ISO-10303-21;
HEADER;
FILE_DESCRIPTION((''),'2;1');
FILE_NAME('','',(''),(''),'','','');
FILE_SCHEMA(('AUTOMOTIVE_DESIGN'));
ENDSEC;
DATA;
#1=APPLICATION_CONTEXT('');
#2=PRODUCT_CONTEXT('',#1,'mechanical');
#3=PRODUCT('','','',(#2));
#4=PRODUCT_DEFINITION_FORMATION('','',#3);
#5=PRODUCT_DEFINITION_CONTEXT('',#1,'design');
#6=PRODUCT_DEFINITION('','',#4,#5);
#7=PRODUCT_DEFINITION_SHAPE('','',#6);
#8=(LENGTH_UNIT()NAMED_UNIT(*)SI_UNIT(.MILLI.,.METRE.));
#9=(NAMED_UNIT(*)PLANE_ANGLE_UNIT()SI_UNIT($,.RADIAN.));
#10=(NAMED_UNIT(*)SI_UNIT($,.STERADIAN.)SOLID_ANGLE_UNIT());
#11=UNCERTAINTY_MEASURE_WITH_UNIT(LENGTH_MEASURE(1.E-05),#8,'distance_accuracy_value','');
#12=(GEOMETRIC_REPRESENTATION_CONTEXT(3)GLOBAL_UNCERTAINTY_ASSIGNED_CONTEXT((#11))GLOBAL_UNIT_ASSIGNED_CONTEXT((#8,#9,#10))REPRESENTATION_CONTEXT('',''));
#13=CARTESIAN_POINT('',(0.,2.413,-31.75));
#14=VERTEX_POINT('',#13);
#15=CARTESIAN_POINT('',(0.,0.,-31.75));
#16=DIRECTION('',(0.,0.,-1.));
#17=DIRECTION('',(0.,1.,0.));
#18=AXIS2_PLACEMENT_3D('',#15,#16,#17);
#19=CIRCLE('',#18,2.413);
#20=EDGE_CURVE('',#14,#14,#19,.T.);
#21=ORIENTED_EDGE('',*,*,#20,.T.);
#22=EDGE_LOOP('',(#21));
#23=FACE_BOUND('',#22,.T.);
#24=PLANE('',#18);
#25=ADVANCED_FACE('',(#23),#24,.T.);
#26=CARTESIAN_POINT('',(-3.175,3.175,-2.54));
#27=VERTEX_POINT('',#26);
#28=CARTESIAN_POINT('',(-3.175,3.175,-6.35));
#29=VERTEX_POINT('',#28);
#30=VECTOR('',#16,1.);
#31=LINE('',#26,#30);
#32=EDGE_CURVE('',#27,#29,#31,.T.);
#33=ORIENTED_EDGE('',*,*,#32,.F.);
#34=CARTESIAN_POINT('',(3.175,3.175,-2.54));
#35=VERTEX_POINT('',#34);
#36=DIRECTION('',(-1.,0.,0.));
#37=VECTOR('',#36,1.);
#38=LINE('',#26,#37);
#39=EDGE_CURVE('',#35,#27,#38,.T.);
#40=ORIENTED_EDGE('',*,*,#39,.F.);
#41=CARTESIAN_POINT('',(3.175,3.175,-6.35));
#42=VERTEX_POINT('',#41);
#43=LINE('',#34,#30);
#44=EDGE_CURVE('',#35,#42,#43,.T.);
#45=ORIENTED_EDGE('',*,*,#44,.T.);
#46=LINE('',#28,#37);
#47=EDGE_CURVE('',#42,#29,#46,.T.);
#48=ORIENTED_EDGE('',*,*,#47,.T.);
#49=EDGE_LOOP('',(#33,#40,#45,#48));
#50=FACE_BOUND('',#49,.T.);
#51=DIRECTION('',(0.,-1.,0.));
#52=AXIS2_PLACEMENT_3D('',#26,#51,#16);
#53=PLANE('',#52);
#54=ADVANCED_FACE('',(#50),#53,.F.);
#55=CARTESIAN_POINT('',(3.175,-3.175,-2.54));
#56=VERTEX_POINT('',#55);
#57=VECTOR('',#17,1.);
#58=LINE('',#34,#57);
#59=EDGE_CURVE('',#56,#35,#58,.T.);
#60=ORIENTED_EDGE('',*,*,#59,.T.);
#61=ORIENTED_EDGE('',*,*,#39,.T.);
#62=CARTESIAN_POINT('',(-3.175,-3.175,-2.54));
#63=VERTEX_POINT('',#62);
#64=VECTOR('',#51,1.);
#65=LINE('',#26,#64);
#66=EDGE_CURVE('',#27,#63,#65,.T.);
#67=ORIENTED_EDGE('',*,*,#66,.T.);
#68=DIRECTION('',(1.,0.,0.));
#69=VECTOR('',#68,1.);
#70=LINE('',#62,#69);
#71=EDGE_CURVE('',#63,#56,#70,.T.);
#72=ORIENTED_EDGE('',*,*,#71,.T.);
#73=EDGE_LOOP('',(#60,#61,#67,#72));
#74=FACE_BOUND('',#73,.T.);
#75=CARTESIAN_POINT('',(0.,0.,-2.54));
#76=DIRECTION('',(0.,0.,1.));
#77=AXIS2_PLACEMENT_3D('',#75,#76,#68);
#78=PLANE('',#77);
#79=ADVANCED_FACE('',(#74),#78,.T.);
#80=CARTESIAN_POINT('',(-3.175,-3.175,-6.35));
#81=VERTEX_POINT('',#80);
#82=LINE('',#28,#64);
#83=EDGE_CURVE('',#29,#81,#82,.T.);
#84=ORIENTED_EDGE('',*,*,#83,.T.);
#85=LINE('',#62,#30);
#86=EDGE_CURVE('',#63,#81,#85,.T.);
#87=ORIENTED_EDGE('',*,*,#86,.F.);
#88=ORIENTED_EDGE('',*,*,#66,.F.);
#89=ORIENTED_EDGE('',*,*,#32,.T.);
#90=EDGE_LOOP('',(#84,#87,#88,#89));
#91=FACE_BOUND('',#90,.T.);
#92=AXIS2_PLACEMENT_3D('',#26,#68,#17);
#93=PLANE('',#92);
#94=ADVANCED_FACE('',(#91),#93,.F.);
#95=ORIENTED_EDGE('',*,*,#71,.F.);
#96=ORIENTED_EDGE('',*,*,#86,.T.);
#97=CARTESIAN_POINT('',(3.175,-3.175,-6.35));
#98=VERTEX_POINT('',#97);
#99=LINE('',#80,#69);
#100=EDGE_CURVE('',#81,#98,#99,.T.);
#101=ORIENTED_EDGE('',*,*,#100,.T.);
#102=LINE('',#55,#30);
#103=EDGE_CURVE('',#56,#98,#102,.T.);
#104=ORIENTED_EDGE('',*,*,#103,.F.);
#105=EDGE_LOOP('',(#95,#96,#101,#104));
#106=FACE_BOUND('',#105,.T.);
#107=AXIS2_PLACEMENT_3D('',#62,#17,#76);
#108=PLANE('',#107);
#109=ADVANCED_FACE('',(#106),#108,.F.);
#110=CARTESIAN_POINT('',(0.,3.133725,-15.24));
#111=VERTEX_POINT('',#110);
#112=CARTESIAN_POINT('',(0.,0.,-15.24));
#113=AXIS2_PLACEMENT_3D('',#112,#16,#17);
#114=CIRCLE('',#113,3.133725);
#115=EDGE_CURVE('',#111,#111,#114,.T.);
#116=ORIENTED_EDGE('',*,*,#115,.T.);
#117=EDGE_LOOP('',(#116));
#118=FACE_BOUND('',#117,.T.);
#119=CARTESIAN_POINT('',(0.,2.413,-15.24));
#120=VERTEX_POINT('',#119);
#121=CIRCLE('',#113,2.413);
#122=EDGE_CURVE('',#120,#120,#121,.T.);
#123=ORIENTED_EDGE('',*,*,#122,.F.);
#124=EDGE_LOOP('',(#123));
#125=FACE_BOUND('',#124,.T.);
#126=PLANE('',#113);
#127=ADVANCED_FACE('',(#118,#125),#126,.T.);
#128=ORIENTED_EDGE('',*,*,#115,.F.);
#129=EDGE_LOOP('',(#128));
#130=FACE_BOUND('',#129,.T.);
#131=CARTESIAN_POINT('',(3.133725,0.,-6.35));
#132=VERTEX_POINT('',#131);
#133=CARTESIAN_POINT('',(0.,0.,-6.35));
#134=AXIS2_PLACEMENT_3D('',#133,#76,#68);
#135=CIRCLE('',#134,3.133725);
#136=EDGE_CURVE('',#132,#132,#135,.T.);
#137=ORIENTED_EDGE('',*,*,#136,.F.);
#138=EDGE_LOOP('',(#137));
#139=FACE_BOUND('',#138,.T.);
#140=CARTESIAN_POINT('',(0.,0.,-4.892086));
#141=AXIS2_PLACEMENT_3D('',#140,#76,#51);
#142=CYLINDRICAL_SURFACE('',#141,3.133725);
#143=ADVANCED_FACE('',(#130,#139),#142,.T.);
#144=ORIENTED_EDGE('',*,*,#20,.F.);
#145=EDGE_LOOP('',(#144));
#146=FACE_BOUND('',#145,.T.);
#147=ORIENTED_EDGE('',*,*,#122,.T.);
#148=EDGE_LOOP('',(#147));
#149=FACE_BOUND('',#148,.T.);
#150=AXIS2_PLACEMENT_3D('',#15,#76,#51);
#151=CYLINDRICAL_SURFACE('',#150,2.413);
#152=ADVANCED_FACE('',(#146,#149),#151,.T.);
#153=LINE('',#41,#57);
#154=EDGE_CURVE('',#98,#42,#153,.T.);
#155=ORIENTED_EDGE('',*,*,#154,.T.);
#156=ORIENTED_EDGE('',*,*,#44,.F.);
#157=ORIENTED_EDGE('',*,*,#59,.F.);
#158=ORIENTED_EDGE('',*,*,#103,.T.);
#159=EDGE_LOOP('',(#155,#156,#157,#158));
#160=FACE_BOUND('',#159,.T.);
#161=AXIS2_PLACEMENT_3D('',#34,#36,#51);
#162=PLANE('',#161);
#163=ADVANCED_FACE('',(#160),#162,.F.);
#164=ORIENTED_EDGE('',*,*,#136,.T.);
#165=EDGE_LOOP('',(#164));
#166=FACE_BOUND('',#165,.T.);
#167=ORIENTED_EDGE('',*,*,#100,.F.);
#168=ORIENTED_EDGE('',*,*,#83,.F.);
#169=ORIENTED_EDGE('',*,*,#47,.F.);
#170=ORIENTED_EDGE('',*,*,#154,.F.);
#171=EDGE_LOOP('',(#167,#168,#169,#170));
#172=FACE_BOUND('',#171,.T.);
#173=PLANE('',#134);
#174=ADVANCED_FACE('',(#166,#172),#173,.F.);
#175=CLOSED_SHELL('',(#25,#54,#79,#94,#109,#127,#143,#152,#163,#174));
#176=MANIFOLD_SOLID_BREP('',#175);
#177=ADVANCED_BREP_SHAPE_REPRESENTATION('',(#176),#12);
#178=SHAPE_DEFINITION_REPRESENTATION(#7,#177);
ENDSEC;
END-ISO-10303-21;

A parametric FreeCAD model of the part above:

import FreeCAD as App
import Part
import Sketcher

V = App.Vector
Q = App.Units.Quantity


def add_polygon(sketch, points):
    """Adds a closed chain of lines whose ends are joined by coincident constraints."""
    first, n = sketch.GeometryCount, len(points)
    for a, b in zip(points, points[1:] + points[:1]):
        sketch.addGeometry(Part.LineSegment(App.Vector(*a, 0), App.Vector(*b, 0)), False)
    for i in range(n):
        sketch.addConstraint(Sketcher.Constraint("Coincident", first + i, 2, first + (i + 1) % n, 1))

doc = App.newDocument("Part")
params = doc.addObject("Spreadsheet::Sheet", "Params")
for row, (alias, value) in enumerate([
    ("sketch1_height", "0.5 in"),
    ("sketch1_width", "0.085 in"),
    ("sketch1_height2", "0.247 in"),
    ("revolution_angle", "360 deg"),
    ("pocket1_length", "1.147 in"),
    ("sketch3_diameter", "0.19 in"),
    ("pad1_length", "0.65 in"),
    ("sketch4_diameter", "0.37 in"),
    ("pocket2_length", "0.25 in"),
    ("sketch5_width", "0.25 in"),
    ("pad2_length", "0.15 in"),
], start=1):
    params.set(f"A{row}", alias)
    params.set(f"B{row}", "=" + value)
    params.setAlias(f"B{row}", alias)

body = doc.addObject("PartDesign::Body", "Body")

# Sketch on YZ plane
sketch1 = body.newObject("Sketcher::SketchObject", "Sketch")
sketch1.AttachmentSupport = (doc.getObject("YZ_Plane"), [""])
sketch1.MapMode = "FlatFace"
add_polygon(sketch1, [(0, -44.3738), (2.159, -44.3738), (3.123565, -43.409235), (3.123565, -25.3238), (3.133725, -18.9738), (3.133725, -6.2738), (4.699, -6.2738), (4.699, 0), (0, 0)])  # lines 0-8
sketch1.addConstraint(Sketcher.Constraint("Horizontal", 0))
sketch1.addConstraint(Sketcher.Constraint("Vertical", 2))
sketch1.addConstraint(Sketcher.Constraint("Vertical", 4))
sketch1.addConstraint(Sketcher.Constraint("Horizontal", 5))
sketch1.addConstraint(Sketcher.Constraint("Vertical", 6))
sketch1.addConstraint(Sketcher.Constraint("Horizontal", 7))
sketch1.addConstraint(Sketcher.Constraint("Vertical", 8))
sketch1.addConstraint(Sketcher.Constraint("Coincident", 7, 2, -1, 1))
sketch1.addConstraint(Sketcher.Constraint("DistanceY", 4, 1, 4, 2, Q("0.5 in")))
sketch1.addConstraint(Sketcher.Constraint("Angle", 1, Q("45 deg")))
sketch1.addConstraint(Sketcher.Constraint("DistanceY", 0, 2, 3, 2, Q("1 in")))
sketch1.addConstraint(Sketcher.Constraint("DistanceX", 0, 2, 5, 2, Q("0.1 in")))
sketch1.addConstraint(Sketcher.Constraint("DistanceX", 0, 1, 0, 2, Q("0.085 in")))
sketch1.addConstraint(Sketcher.Constraint("DistanceY", 6, 1, 6, 2, Q("0.247 in")))
sketch1.addConstraint(Sketcher.Constraint("DistanceY", 0, 2, 2, 2, Q("0.75 in")))
sketch1.addConstraint(Sketcher.Constraint("DistanceX", 2, 2, 3, 2, Q("0.0004 in")))
sketch1.addConstraint(Sketcher.Constraint("Distance", 1, 1.364101))
sketch1.setExpression("Constraints[17]", "Params.sketch1_height")
sketch1.setExpression("Constraints[21]", "Params.sketch1_width")
sketch1.setExpression("Constraints[22]", "Params.sketch1_height2")
revolution = body.newObject("PartDesign::Revolution", "Revolution")
revolution.Profile = sketch1
revolution.ReferenceAxis = (sketch1, ["V_Axis"])
revolution.setExpression("Angle", "Params.revolution_angle")

# Sketch on XY plane
sketch2 = body.newObject("Sketcher::SketchObject", "Sketch001")
sketch2.AttachmentSupport = (doc.getObject("XY_Plane"), [""])
sketch2.MapMode = "FlatFace"
sketch2.AttachmentOffset = App.Placement(V(0, 0, -1.747 * 25.4), App.Rotation())
sketch2.addGeometry(Part.Circle(V(0, 0, 0), V(0, 0, 1), 3.6875), False)
sketch2.addConstraint(Sketcher.Constraint("Coincident", 0, 3, -1, 1))
sketch2.addConstraint(Sketcher.Constraint("Diameter", 0, 7.375))
pocket1 = body.newObject("PartDesign::Pocket", "Pocket")
pocket1.Profile = sketch2
pocket1.setExpression("Length", "Params.pocket1_length")
pocket1.Reversed = True

# Sketch on XY plane
sketch3 = body.newObject("Sketcher::SketchObject", "Sketch002")
sketch3.AttachmentSupport = (doc.getObject("XY_Plane"), [""])
sketch3.MapMode = "FlatFace"
sketch3.AttachmentOffset = App.Placement(V(0, 0, -0.6 * 25.4), App.Rotation())
sketch3.addGeometry(Part.Circle(V(0, 0, 0), V(0, 0, 1), 2.413), False)
sketch3.addConstraint(Sketcher.Constraint("Coincident", 0, 3, -1, 1))
sketch3.addConstraint(Sketcher.Constraint("Diameter", 0, Q("0.19 in")))
sketch3.setExpression("Constraints[1]", "Params.sketch3_diameter")
pad1 = body.newObject("PartDesign::Pad", "Pad")
pad1.Profile = sketch3
pad1.setExpression("Length", "Params.pad1_length")
pad1.Reversed = True

# Sketch on XY plane
sketch4 = body.newObject("Sketcher::SketchObject", "Sketch003")
sketch4.AttachmentSupport = (doc.getObject("XY_Plane"), [""])
sketch4.MapMode = "FlatFace"
sketch4.addGeometry(Part.Circle(V(0, 0, 0), V(0, 0, 1), 4.699), False)
sketch4.addConstraint(Sketcher.Constraint("Coincident", 0, 3, -1, 1))
sketch4.addConstraint(Sketcher.Constraint("Diameter", 0, Q("0.37 in")))
sketch4.setExpression("Constraints[1]", "Params.sketch4_diameter")
pocket2 = body.newObject("PartDesign::Pocket", "Pocket001")
pocket2.Profile = sketch4
pocket2.setExpression("Length", "Params.pocket2_length")

# Sketch on XY plane
sketch5 = body.newObject("Sketcher::SketchObject", "Sketch004")
sketch5.AttachmentSupport = (doc.getObject("XY_Plane"), [""])
sketch5.MapMode = "FlatFace"
sketch5.AttachmentOffset = App.Placement(V(0, 0, -0.25 * 25.4), App.Rotation())
add_polygon(sketch5, [(-3.175, 3.175), (-3.175, -3.175), (3.175, -3.175), (3.175, 3.175)])  # lines 0-3
sketch5.addConstraint(Sketcher.Constraint("Vertical", 0))
sketch5.addConstraint(Sketcher.Constraint("Horizontal", 1))
sketch5.addConstraint(Sketcher.Constraint("Vertical", 2))
sketch5.addConstraint(Sketcher.Constraint("Horizontal", 3))
sketch5.addConstraint(Sketcher.Constraint("Symmetric", 0, 2, 2, 2, -1, 1))
sketch5.addConstraint(Sketcher.Constraint("Equal", 3, 0))
sketch5.addConstraint(Sketcher.Constraint("DistanceX", 1, 1, 1, 2, Q("0.25 in")))
sketch5.setExpression("Constraints[10]", "Params.sketch5_width")
pad2 = body.newObject("PartDesign::Pad", "Pad001")
pad2.Profile = sketch5
pad2.setExpression("Length", "Params.pad2_length")

doc.recompute()
